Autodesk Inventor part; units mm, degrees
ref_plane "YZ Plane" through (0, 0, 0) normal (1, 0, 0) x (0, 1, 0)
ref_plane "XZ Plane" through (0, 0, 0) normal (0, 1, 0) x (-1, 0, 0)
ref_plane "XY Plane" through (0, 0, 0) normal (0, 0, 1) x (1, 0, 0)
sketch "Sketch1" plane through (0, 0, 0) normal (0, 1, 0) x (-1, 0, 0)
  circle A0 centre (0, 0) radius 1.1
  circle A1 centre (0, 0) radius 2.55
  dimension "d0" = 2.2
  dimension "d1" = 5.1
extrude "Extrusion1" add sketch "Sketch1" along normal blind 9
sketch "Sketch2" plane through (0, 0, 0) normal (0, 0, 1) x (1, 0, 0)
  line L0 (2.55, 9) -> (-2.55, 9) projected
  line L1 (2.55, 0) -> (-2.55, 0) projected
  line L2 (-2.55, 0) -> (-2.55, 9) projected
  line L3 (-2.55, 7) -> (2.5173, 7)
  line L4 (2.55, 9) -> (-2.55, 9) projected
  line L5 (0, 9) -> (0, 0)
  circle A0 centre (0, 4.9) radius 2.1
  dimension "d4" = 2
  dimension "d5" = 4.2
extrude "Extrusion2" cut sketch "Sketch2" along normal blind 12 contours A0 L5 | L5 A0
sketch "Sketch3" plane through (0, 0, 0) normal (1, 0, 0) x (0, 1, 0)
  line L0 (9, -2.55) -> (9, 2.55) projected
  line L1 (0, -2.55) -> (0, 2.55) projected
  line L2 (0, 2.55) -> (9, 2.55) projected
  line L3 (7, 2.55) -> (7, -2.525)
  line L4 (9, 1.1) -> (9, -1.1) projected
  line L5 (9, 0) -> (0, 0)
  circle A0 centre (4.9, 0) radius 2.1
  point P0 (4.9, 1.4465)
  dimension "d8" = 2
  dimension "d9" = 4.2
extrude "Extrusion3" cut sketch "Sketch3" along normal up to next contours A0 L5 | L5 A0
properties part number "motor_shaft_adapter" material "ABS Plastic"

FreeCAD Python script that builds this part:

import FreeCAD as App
import Part
import Sketcher

doc = App.newDocument("Part")
body = doc.addObject("PartDesign::Body", "Body")

sketch1 = doc.addObject("Sketcher::SketchObject", "Sketch")
body.addObject(sketch1)
sketch1.AttachmentSupport = (doc.XZ_Plane, [""])
sketch1.MapMode = "FlatFace"
sketch1.addGeometry(Part.Circle(App.Vector(0, 0, 0), App.Vector(0, 0, 1), 2.5), False)
sketch1.addGeometry(Part.Circle(App.Vector(0, 0, 0), App.Vector(0, 0, 1), 1.1), False)
sketch1.addConstraint(Sketcher.Constraint("Coincident", 0, 3, -1, 1))
sketch1.addConstraint(Sketcher.Constraint("Coincident", 1, 3, -1, 1))
sketch1.addConstraint(Sketcher.Constraint("Diameter", 0, 5.1))
sketch1.addConstraint(Sketcher.Constraint("Diameter", 1, 2.2))
pad1 = doc.addObject("PartDesign::Pad", "Pad")
body.addObject(pad1)
pad1.Profile = sketch1
pad1.Length = 9
pad1.Reversed = True

sketch2 = doc.addObject("Sketcher::SketchObject", "Sketch001")
body.addObject(sketch2)
sketch2.AttachmentSupport = (doc.XY_Plane, [""])
sketch2.MapMode = "FlatFace"
sketch2.addGeometry(Part.Circle(App.Vector(0, 4.9, 0), App.Vector(0, 0, 1), 2.1), False)
sketch2.addConstraint(Sketcher.Constraint("PointOnObject", 0, 3, -2))
sketch2.addConstraint(Sketcher.Constraint("Diameter", 0, 4.2))
sketch2.addConstraint(Sketcher.Constraint("DistanceY", -1, 1, 0, 3, 4.9))
pocket1 = doc.addObject("PartDesign::Pocket", "Pocket")
body.addObject(pocket1)
pocket1.Profile = sketch2
pocket1.Length = 12
pocket1.Reversed = True

sketch3 = doc.addObject("Sketcher::SketchObject", "Sketch002")
body.addObject(sketch3)
sketch3.AttachmentSupport = (doc.YZ_Plane, [""])
sketch3.MapMode = "FlatFace"
sketch3.addGeometry(Part.Circle(App.Vector(4.9, 0, 0), App.Vector(0, 0, 1), 2.1), False)
sketch3.addConstraint(Sketcher.Constraint("PointOnObject", 0, 3, -1))
sketch3.addConstraint(Sketcher.Constraint("Diameter", 0, 4.2))
sketch3.addConstraint(Sketcher.Constraint("DistanceX", -1, 1, 0, 3, 4.9))
pocket2 = doc.addObject("PartDesign::Pocket", "Pocket001")
body.addObject(pocket2)
pocket2.Profile = sketch3
pocket2.Length = 2.55
pocket2.Reversed = True

doc.recompute()
